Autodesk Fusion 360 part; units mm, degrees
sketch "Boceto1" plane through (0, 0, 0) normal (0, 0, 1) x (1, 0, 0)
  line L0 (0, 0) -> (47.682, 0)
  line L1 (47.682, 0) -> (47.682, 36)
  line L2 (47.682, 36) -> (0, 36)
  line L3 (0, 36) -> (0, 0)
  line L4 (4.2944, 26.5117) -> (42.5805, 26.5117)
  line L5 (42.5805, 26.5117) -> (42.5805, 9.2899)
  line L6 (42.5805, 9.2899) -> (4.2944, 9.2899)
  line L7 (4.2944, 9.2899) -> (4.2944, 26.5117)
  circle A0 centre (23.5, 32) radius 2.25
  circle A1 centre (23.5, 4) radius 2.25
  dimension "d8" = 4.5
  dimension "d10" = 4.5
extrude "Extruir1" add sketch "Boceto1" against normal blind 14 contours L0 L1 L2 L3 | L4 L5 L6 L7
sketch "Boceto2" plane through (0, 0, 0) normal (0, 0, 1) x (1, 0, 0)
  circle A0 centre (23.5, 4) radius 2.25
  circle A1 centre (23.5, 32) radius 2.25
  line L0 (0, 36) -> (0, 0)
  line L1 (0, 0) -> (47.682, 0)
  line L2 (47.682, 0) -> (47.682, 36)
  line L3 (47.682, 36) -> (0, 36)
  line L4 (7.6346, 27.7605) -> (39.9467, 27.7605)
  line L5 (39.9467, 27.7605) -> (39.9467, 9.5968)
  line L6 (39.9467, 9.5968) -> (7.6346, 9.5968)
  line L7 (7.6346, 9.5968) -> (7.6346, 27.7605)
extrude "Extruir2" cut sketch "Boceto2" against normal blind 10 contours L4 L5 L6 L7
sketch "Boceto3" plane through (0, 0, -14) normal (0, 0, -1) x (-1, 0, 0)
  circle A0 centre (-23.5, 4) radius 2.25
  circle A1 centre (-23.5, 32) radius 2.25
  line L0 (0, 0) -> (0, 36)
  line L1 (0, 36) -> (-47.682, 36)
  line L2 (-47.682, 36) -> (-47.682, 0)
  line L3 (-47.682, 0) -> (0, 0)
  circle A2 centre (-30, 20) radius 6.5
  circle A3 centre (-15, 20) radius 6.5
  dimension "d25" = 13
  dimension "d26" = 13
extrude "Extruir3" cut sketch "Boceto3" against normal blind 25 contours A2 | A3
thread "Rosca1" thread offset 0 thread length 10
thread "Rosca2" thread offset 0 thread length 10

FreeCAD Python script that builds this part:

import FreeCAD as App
import Part
import Sketcher
from FreeCAD import Vector
Q = App.Units.Quantity

doc = App.newDocument("Part")
params = doc.addObject("Spreadsheet::Sheet", "Params")
for row, (alias, value) in enumerate([
    ("sketch1_diameter", "4.5 mm"),
    ("sketch1_height", "36 mm"),
    ("pad1_length", "14 mm"),
    ("pocket1_length", "10 mm"),
    ("sketch3_diameter", "13 mm"),
    ("pocket2_length", "25 mm"),
], start=1):
    params.set(f"A{row}", alias)
    params.set(f"B{row}", "=" + value)
    params.setAlias(f"B{row}", alias)

body = doc.addObject("PartDesign::Body", "Body")

sketch1 = body.newObject("Sketcher::SketchObject", "Sketch")
sketch1.AttachmentSupport = (doc.getObject("XY_Plane"), [""])
sketch1.MapMode = "FlatFace"
sketch1.addGeometry([
    Part.LineSegment(Vector(0, 36, 0), Vector(0, 0, 0)),
    Part.LineSegment(Vector(0, 0, 0), Vector(47.682, 0, 0)),
    Part.LineSegment(Vector(47.682, 0, 0), Vector(47.682, 36, 0)),
    Part.LineSegment(Vector(47.682, 36, 0), Vector(0, 36, 0)),
    Part.Circle(Vector(23.5, 4, 0), Vector(0, 0, 1), 2.25),
    Part.Circle(Vector(23.5, 32, 0), Vector(0, 0, 1), 2.25),
], False)
sketch1.addConstraint([
    Sketcher.Constraint("Coincident", 0, 2, 1, 1),
    Sketcher.Constraint("Coincident", 1, 2, 2, 1),
    Sketcher.Constraint("Coincident", 2, 2, 3, 1),
    Sketcher.Constraint("Coincident", 3, 2, 0, 1),
    Sketcher.Constraint("Vertical", 0),
    Sketcher.Constraint("Horizontal", 1),
    Sketcher.Constraint("Vertical", 2),
    Sketcher.Constraint("Horizontal", 3),
    Sketcher.Constraint("Coincident", 0, 2, -1, 1),
    Sketcher.Constraint("Equal", 4, 5),
    Sketcher.Constraint("Vertical", 4, 3, 5, 3),
    Sketcher.Constraint("Diameter", 4, Q("4.5 mm")),
    Sketcher.Constraint("DistanceY", 0, 2, 0, 1, Q("36 mm")),
    Sketcher.Constraint("DistanceY", -1, 1, 4, 3, Q("4 mm")),
    Sketcher.Constraint("DistanceY", -1, 1, 5, 3, Q("32 mm")),
    Sketcher.Constraint("DistanceX", -1, 1, 4, 3, Q("23.5 mm")),
    Sketcher.Constraint("DistanceX", 1, 1, 1, 2, Q("47.682 mm")),
])
sketch1.setExpression("Constraints[11]", "Params.sketch1_diameter")
sketch1.setExpression("Constraints[12]", "Params.sketch1_height")
pad1 = body.newObject("PartDesign::Pad", "Pad")
pad1.Profile = sketch1
pad1.setExpression("Length", "Params.pad1_length")
pad1.Reversed = True

sketch2 = body.newObject("Sketcher::SketchObject", "Sketch001")
sketch2.AttachmentSupport = (doc.getObject("XY_Plane"), [""])
sketch2.MapMode = "FlatFace"
sketch2.addGeometry([
    Part.LineSegment(Vector(39.9467, 27.7605, 0), Vector(7.6346, 27.7605, 0)),
    Part.LineSegment(Vector(7.6346, 27.7605, 0), Vector(7.6346, 9.5968, 0)),
    Part.LineSegment(Vector(7.6346, 9.5968, 0), Vector(39.9467, 9.5968, 0)),
    Part.LineSegment(Vector(39.9467, 9.5968, 0), Vector(39.9467, 27.7605, 0)),
], False)
sketch2.addConstraint([
    Sketcher.Constraint("Coincident", 0, 2, 1, 1),
    Sketcher.Constraint("Coincident", 1, 2, 2, 1),
    Sketcher.Constraint("Coincident", 2, 2, 3, 1),
    Sketcher.Constraint("Coincident", 3, 2, 0, 1),
    Sketcher.Constraint("Horizontal", 0),
    Sketcher.Constraint("Vertical", 1),
    Sketcher.Constraint("Horizontal", 2),
    Sketcher.Constraint("Vertical", 3),
    Sketcher.Constraint("DistanceX", 0, 2, 0, 1, Q("32.312 mm")),
    Sketcher.Constraint("DistanceY", 1, 2, 1, 1, Q("18.1637 mm")),
    Sketcher.Constraint("DistanceX", -1, 1, 0, 2, Q("7.6346 mm")),
    Sketcher.Constraint("DistanceY", -1, 1, 0, 2, Q("27.7605 mm")),
])
pocket1 = body.newObject("PartDesign::Pocket", "Pocket")
pocket1.Profile = sketch2
pocket1.setExpression("Length", "Params.pocket1_length")

sketch3 = body.newObject("Sketcher::SketchObject", "Sketch002")
sketch3.AttachmentSupport = (doc.getObject("XY_Plane"), [""])
sketch3.MapMode = "FlatFace"
sketch3.AttachmentOffset = App.Placement(Vector(0, 0, -14), App.Rotation())
sketch3.addGeometry([
    Part.Circle(Vector(30, 20, 0), Vector(0, 0, 1), 6.5),
    Part.Circle(Vector(15, 20, 0), Vector(0, 0, 1), 6.5),
], False)
sketch3.addConstraint([
    Sketcher.Constraint("Equal", 0, 1),
    Sketcher.Constraint("Horizontal", 0, 3, 1, 3),
    Sketcher.Constraint("Diameter", 0, Q("13 mm")),
    Sketcher.Constraint("DistanceX", -1, 1, 0, 3, Q("30 mm")),
    Sketcher.Constraint("DistanceY", -1, 1, 0, 3, Q("20 mm")),
    Sketcher.Constraint("DistanceX", -1, 1, 1, 3, Q("15 mm")),
])
sketch3.setExpression("Constraints[2]", "Params.sketch3_diameter")
pocket2 = body.newObject("PartDesign::Pocket", "Pocket001")
pocket2.Profile = sketch3
pocket2.setExpression("Length", "Params.pocket2_length")
pocket2.Reversed = True

doc.recompute()
